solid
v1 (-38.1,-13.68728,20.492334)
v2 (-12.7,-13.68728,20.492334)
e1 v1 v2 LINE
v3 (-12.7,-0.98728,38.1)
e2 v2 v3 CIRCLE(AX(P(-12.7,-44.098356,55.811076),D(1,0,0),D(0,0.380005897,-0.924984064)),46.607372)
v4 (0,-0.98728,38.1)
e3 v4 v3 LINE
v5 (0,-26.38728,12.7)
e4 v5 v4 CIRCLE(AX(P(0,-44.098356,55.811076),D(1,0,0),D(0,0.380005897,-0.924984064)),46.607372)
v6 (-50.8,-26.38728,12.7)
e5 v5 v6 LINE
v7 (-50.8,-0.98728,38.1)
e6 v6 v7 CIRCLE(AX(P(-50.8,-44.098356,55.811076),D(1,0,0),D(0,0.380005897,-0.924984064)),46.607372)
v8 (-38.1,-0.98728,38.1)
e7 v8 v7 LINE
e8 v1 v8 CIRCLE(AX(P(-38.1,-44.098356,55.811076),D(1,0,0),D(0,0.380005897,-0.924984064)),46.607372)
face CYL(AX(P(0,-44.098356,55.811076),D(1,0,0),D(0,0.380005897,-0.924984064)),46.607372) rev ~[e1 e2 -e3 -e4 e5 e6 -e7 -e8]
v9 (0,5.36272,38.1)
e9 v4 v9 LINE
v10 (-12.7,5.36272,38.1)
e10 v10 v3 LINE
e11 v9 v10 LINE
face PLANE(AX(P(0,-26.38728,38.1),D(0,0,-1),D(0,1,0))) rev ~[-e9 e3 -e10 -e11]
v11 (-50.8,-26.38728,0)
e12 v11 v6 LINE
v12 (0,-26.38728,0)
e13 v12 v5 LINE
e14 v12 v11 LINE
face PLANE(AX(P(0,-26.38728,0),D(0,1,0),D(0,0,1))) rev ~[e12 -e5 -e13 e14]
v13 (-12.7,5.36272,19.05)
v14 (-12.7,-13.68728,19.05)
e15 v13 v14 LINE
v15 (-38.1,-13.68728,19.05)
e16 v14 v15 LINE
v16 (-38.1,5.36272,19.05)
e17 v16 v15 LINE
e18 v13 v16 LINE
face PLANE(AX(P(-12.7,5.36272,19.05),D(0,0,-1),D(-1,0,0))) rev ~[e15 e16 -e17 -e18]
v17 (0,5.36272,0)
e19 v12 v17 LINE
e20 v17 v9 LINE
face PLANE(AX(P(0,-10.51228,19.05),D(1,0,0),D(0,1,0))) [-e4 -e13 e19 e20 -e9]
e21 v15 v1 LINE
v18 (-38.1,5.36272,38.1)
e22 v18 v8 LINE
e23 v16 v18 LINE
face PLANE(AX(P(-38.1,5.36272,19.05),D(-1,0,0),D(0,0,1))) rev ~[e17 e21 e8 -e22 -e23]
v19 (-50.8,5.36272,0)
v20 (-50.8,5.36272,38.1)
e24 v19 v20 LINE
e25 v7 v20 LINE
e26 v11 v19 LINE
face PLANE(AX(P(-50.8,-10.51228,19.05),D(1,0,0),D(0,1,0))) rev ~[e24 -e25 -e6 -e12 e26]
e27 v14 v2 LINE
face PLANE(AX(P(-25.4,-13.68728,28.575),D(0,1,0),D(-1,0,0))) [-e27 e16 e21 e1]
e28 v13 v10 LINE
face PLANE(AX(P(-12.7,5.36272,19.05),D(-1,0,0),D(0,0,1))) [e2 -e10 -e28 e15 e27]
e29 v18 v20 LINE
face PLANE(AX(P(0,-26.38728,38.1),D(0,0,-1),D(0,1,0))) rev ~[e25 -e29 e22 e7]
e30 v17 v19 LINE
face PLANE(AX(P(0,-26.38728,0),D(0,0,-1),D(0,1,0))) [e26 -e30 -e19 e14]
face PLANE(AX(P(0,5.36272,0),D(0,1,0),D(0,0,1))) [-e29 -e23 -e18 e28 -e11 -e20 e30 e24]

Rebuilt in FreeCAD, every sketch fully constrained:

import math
import FreeCAD as App
import Part
import Sketcher

V = App.Vector
Q = App.Units.Quantity


def add_polygon(sketch, points):
    """Adds a closed chain of lines whose ends are joined by coincident constraints."""
    first, n = sketch.GeometryCount, len(points)
    for a, b in zip(points, points[1:] + points[:1]):
        sketch.addGeometry(Part.LineSegment(App.Vector(*a, 0), App.Vector(*b, 0)), False)
    for i in range(n):
        sketch.addConstraint(Sketcher.Constraint("Coincident", first + i, 2, first + (i + 1) % n, 1))

doc = App.newDocument("Part")
body = doc.addObject("PartDesign::Body", "Body")

# Sketch on YZ plane
sketch1 = doc.addObject("Sketcher::SketchObject", "Sketch")
body.addObject(sketch1)
sketch1.AttachmentSupport = (doc.YZ_Plane, [""])
sketch1.MapMode = "FlatFace"
add_polygon(sketch1, [(-26.38728, 38.1), (-26.38728, 0), (5.36272, 0), (5.36272, 38.1)])  # lines 0-3
sketch1.addConstraint([
    Sketcher.Constraint("Vertical", 0),
    Sketcher.Constraint("Horizontal", 1),
    Sketcher.Constraint("Vertical", 2),
    Sketcher.Constraint("Horizontal", 3),
    Sketcher.Constraint("PointOnObject", 0, 2, -1),
    Sketcher.Constraint("DistanceY", 0, 2, 0, 1, Q("1.5 in")),
    Sketcher.Constraint("DistanceX", 1, 1, 1, 2, Q("1.25 in")),
    Sketcher.Constraint("DistanceX", 0, 2, -1, 1, Q("26.38728 mm")),
])
pad1 = doc.addObject("PartDesign::Pad", "Pad")
body.addObject(pad1)
pad1.Profile = sketch1
pad1.Length = Q("2 in")
pad1.Reversed = True

# Sketch on YZ plane
sketch2 = doc.addObject("Sketcher::SketchObject", "Sketch001")
body.addObject(sketch2)
sketch2.AttachmentSupport = (doc.YZ_Plane, [""])
sketch2.MapMode = "FlatFace"
sketch2.addGeometry([
    Part.LineSegment(V(-26.38728, 38.1, 0), V(-26.38728, 12.7, 0)),
    Part.ArcOfCircle(Part.Circle(V(-44.098356, 55.811076, 0), V(0, 0, 1), 46.607372), math.radians(-67.665952), math.radians(-22.334048)),
    Part.LineSegment(V(-0.98728, 38.1, 0), V(-26.38728, 38.1, 0)),
], False)
sketch2.addConstraint([
    Sketcher.Constraint("Coincident", 0, 2, 1, 1),
    Sketcher.Constraint("Coincident", 1, 2, 2, 1),
    Sketcher.Constraint("Coincident", 2, 2, 0, 1),
    Sketcher.Constraint("Vertical", 0),
    Sketcher.Constraint("Horizontal", 2),
    Sketcher.Constraint("Equal", 2, 0),
    Sketcher.Constraint("DistanceX", 2, 2, 2, 1, Q("1 in")),
    Sketcher.Constraint("DistanceY", -1, 1, 0, 2, Q("0.5 in")),
    Sketcher.Constraint("Radius", 1, Q("46.607372 mm")),
    Sketcher.Constraint("DistanceX", 0, 2, -1, 1, Q("26.38728 mm")),
])
pocket1 = doc.addObject("PartDesign::Pocket", "Pocket")
body.addObject(pocket1)
pocket1.Profile = sketch2
pocket1.Length = Q("2 in")

# Sketch on XZ plane
sketch3 = doc.addObject("Sketcher::SketchObject", "Sketch002")
body.addObject(sketch3)
sketch3.AttachmentSupport = (doc.XZ_Plane, [""])
sketch3.MapMode = "FlatFace"
sketch3.AttachmentOffset = App.Placement(V(0, 0, -5.36272), App.Rotation())
add_polygon(sketch3, [(-12.7, 38.1), (-12.7, 19.05), (-38.1, 19.05), (-38.1, 38.1)])  # lines 0-3
sketch3.addConstraint([
    Sketcher.Constraint("Vertical", 0),
    Sketcher.Constraint("Horizontal", 1),
    Sketcher.Constraint("Vertical", 2),
    Sketcher.Constraint("Horizontal", 3),
    Sketcher.Constraint("DistanceX", 1, 2, 1, 1, Q("1 in")),
    Sketcher.Constraint("DistanceY", 0, 2, 0, 1, Q("0.75 in")),
    Sketcher.Constraint("DistanceX", 0, 2, -1, 1, Q("0.5 in")),
    Sketcher.Constraint("DistanceY", -1, 1, 2, 2, Q("1.5 in")),
])
pocket2 = doc.addObject("PartDesign::Pocket", "Pocket001")
body.addObject(pocket2)
pocket2.Profile = sketch3
pocket2.Length = Q("0.75 in")
pocket2.Reversed = True

doc.recompute()
